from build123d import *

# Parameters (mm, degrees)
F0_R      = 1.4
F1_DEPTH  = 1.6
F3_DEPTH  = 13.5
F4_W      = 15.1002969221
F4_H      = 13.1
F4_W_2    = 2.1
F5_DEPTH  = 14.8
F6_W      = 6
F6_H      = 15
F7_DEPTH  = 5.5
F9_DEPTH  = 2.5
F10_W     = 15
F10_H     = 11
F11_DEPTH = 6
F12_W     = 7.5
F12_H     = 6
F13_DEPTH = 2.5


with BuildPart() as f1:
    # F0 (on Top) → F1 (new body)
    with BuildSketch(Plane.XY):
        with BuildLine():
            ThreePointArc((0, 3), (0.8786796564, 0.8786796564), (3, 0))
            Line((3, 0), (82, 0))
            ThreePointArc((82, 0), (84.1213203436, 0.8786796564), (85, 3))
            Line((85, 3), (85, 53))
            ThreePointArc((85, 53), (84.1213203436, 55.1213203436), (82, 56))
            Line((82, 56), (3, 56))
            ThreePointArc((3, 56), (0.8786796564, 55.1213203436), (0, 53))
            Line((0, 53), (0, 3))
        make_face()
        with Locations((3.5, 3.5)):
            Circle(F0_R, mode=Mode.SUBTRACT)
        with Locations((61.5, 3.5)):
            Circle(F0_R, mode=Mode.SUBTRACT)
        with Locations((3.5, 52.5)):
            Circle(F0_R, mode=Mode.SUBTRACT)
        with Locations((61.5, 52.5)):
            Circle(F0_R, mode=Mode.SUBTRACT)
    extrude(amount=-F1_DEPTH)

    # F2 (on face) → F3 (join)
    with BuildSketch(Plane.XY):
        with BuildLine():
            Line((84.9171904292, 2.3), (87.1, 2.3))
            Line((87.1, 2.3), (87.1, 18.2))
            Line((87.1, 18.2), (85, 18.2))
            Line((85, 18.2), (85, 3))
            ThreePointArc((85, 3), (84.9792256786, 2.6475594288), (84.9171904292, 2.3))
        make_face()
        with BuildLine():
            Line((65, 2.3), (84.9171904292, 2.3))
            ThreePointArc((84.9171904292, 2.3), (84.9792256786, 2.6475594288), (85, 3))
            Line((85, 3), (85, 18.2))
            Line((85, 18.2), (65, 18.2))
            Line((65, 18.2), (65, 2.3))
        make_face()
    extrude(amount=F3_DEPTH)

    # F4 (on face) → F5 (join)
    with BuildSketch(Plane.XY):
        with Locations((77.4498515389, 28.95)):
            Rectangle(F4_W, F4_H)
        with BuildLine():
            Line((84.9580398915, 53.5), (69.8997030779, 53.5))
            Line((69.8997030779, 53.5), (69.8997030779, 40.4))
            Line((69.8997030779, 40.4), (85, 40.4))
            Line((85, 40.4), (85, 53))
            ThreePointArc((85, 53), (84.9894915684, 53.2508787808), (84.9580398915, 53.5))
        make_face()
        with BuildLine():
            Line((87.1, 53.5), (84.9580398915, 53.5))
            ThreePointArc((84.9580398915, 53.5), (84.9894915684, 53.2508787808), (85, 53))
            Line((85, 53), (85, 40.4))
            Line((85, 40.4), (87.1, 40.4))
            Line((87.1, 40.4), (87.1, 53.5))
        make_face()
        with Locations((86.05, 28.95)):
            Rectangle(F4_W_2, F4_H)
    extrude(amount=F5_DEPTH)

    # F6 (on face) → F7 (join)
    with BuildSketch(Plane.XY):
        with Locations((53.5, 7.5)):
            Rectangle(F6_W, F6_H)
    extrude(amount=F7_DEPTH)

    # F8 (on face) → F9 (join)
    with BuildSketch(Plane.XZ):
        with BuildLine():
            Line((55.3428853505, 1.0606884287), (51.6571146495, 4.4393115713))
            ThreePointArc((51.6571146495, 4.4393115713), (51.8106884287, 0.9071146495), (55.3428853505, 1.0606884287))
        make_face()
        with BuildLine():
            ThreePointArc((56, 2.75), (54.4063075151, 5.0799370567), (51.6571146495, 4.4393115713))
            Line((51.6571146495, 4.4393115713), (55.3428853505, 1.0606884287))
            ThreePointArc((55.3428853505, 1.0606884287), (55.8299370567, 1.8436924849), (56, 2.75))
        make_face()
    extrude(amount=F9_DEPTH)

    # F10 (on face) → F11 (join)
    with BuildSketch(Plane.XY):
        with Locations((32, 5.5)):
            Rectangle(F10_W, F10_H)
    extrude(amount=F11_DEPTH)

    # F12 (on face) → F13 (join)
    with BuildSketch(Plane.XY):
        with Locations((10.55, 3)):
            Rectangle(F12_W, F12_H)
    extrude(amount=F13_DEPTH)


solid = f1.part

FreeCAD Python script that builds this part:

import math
import FreeCAD as App
import Part
import Sketcher

doc = App.newDocument("Part")
body = doc.addObject("PartDesign::Body", "Body")

# Sketch on XY plane
sketch1 = body.newObject("Sketcher::SketchObject", "Sketch")
sketch1.AttachmentSupport = (doc.getObject("XY_Plane"), [""])
sketch1.MapMode = "FlatFace"
sketch1.addGeometry(Part.ArcOfCircle(Part.Circle(App.Vector(3, 3, 0), App.Vector(0, 0, 1), 3), math.radians(180), math.radians(270)), False)
sketch1.addGeometry(Part.LineSegment(App.Vector(3, 0, 0), App.Vector(82, 0, 0)), False)
sketch1.addGeometry(Part.ArcOfCircle(Part.Circle(App.Vector(82, 3, 0), App.Vector(0, 0, 1), 3), math.radians(-90), math.radians(0)), False)
sketch1.addGeometry(Part.LineSegment(App.Vector(85, 3, 0), App.Vector(85, 53, 0)), False)
sketch1.addGeometry(Part.ArcOfCircle(Part.Circle(App.Vector(82, 53, 0), App.Vector(0, 0, 1), 3), math.radians(0), math.radians(90)), False)
sketch1.addGeometry(Part.LineSegment(App.Vector(82, 56, 0), App.Vector(3, 56, 0)), False)
sketch1.addGeometry(Part.ArcOfCircle(Part.Circle(App.Vector(3, 53, 0), App.Vector(0, 0, 1), 3), math.radians(90), math.radians(180)), False)
sketch1.addGeometry(Part.LineSegment(App.Vector(0, 53, 0), App.Vector(0, 3, 0)), False)
sketch1.addGeometry(Part.Circle(App.Vector(3.5, 3.5, 0), App.Vector(0, 0, 1), 1.4), False)
sketch1.addGeometry(Part.Circle(App.Vector(61.5, 3.5, 0), App.Vector(0, 0, 1), 1.4), False)
sketch1.addGeometry(Part.Circle(App.Vector(3.5, 52.5, 0), App.Vector(0, 0, 1), 1.4), False)
sketch1.addGeometry(Part.Circle(App.Vector(61.5, 52.5, 0), App.Vector(0, 0, 1), 1.4), False)
sketch1.addConstraint(Sketcher.Constraint("Tangent", 0, 2, 1, 1))
sketch1.addConstraint(Sketcher.Constraint("Tangent", 1, 2, 2, 1))
sketch1.addConstraint(Sketcher.Constraint("Tangent", 2, 2, 3, 1))
sketch1.addConstraint(Sketcher.Constraint("Tangent", 3, 2, 4, 1))
sketch1.addConstraint(Sketcher.Constraint("Tangent", 4, 2, 5, 1))
sketch1.addConstraint(Sketcher.Constraint("Tangent", 5, 2, 6, 1))
sketch1.addConstraint(Sketcher.Constraint("Tangent", 6, 2, 7, 1))
sketch1.addConstraint(Sketcher.Constraint("Tangent", 7, 2, 0, 1))
sketch1.addConstraint(Sketcher.Constraint("Horizontal", 1))
sketch1.addConstraint(Sketcher.Constraint("Vertical", 3))
sketch1.addConstraint(Sketcher.Constraint("Horizontal", 5))
sketch1.addConstraint(Sketcher.Constraint("Vertical", 7))
sketch1.addConstraint(Sketcher.Constraint("Equal", 0, 2))
sketch1.addConstraint(Sketcher.Constraint("Equal", 2, 4))
sketch1.addConstraint(Sketcher.Constraint("Equal", 4, 6))
sketch1.addConstraint(Sketcher.Constraint("Equal", 8, 9))
sketch1.addConstraint(Sketcher.Constraint("Equal", 9, 10))
sketch1.addConstraint(Sketcher.Constraint("Equal", 10, 11))
sketch1.addConstraint(Sketcher.Constraint("PointOnObject", 0, 2, -1))
sketch1.addConstraint(Sketcher.Constraint("PointOnObject", 6, 2, -2))
sketch1.addConstraint(Sketcher.Constraint("Horizontal", 8, 3, 9, 3))
sketch1.addConstraint(Sketcher.Constraint("Horizontal", 10, 3, 11, 3))
sketch1.addConstraint(Sketcher.Constraint("Vertical", 8, 3, 10, 3))
sketch1.addConstraint(Sketcher.Constraint("Vertical", 9, 3, 11, 3))
sketch1.addConstraint(Sketcher.Constraint("Radius", 0, 3.0))
sketch1.addConstraint(Sketcher.Constraint("Diameter", 8, 2.8))
sketch1.addConstraint(Sketcher.Constraint("DistanceX", 1, 1, 1, 2, 79.0))
sketch1.addConstraint(Sketcher.Constraint("DistanceY", 3, 1, 3, 2, 50.0))
sketch1.addConstraint(Sketcher.Constraint("DistanceX", 8, 3, 9, 3, 58.0))
sketch1.addConstraint(Sketcher.Constraint("DistanceY", 8, 3, 10, 3, 49.0))
sketch1.addConstraint(Sketcher.Constraint("DistanceX", -1, 1, 8, 3, 3.5))
sketch1.addConstraint(Sketcher.Constraint("DistanceY", -1, 1, 8, 3, 3.5))
pad1 = body.newObject("PartDesign::Pad", "Pad")
pad1.Profile = sketch1
pad1.Length = 1.6
pad1.Reversed = True

# Sketch on XY plane
sketch2 = body.newObject("Sketcher::SketchObject", "Sketch001")
sketch2.AttachmentSupport = (doc.getObject("XY_Plane"), [""])
sketch2.MapMode = "FlatFace"
sketch2.addGeometry(Part.LineSegment(App.Vector(87.1, 2.3, 0), App.Vector(87.1, 18.2, 0)), False)
sketch2.addGeometry(Part.LineSegment(App.Vector(87.1, 18.2, 0), App.Vector(65, 18.2, 0)), False)
sketch2.addGeometry(Part.LineSegment(App.Vector(65, 18.2, 0), App.Vector(65, 2.3, 0)), False)
sketch2.addGeometry(Part.LineSegment(App.Vector(65, 2.3, 0), App.Vector(87.1, 2.3, 0)), False)
sketch2.addConstraint(Sketcher.Constraint("Coincident", 0, 2, 1, 1))
sketch2.addConstraint(Sketcher.Constraint("Coincident", 1, 2, 2, 1))
sketch2.addConstraint(Sketcher.Constraint("Coincident", 2, 2, 3, 1))
sketch2.addConstraint(Sketcher.Constraint("Coincident", 3, 2, 0, 1))
sketch2.addConstraint(Sketcher.Constraint("Vertical", 0))
sketch2.addConstraint(Sketcher.Constraint("Horizontal", 1))
sketch2.addConstraint(Sketcher.Constraint("Vertical", 2))
sketch2.addConstraint(Sketcher.Constraint("Horizontal", 3))
sketch2.addConstraint(Sketcher.Constraint("DistanceX", 1, 2, 1, 1, 22.1))
sketch2.addConstraint(Sketcher.Constraint("DistanceY", 0, 1, 0, 2, 15.9))
sketch2.addConstraint(Sketcher.Constraint("DistanceX", -1, 1, 1, 2, 65.0))
sketch2.addConstraint(Sketcher.Constraint("DistanceY", -1, 1, 0, 2, 18.2))
pad2 = body.newObject("PartDesign::Pad", "Pad001")
pad2.Profile = sketch2
pad2.Length = 13.5

# Sketch on XY plane
sketch3 = body.newObject("Sketcher::SketchObject", "Sketch002")
sketch3.AttachmentSupport = (doc.getObject("XY_Plane"), [""])
sketch3.MapMode = "FlatFace"
sketch3.addGeometry(Part.LineSegment(App.Vector(69.899703, 35.5, 0), App.Vector(69.899703, 22.4, 0)), False)
sketch3.addGeometry(Part.LineSegment(App.Vector(69.899703, 22.4, 0), App.Vector(87.1, 22.4, 0)), False)
sketch3.addGeometry(Part.LineSegment(App.Vector(87.1, 22.4, 0), App.Vector(87.1, 35.5, 0)), False)
sketch3.addGeometry(Part.LineSegment(App.Vector(87.1, 35.5, 0), App.Vector(69.899703, 35.5, 0)), False)
sketch3.addGeometry(Part.LineSegment(App.Vector(69.899703, 53.5, 0), App.Vector(69.899703, 40.4, 0)), False)
sketch3.addGeometry(Part.LineSegment(App.Vector(69.899703, 40.4, 0), App.Vector(87.1, 40.4, 0)), False)
sketch3.addGeometry(Part.LineSegment(App.Vector(87.1, 40.4, 0), App.Vector(87.1, 53.5, 0)), False)
sketch3.addGeometry(Part.LineSegment(App.Vector(87.1, 53.5, 0), App.Vector(69.899703, 53.5, 0)), False)
sketch3.addConstraint(Sketcher.Constraint("Coincident", 0, 2, 1, 1))
sketch3.addConstraint(Sketcher.Constraint("Coincident", 1, 2, 2, 1))
sketch3.addConstraint(Sketcher.Constraint("Coincident", 2, 2, 3, 1))
sketch3.addConstraint(Sketcher.Constraint("Coincident", 3, 2, 0, 1))
sketch3.addConstraint(Sketcher.Constraint("Coincident", 4, 2, 5, 1))
sketch3.addConstraint(Sketcher.Constraint("Coincident", 5, 2, 6, 1))
sketch3.addConstraint(Sketcher.Constraint("Coincident", 6, 2, 7, 1))
sketch3.addConstraint(Sketcher.Constraint("Coincident", 7, 2, 4, 1))
sketch3.addConstraint(Sketcher.Constraint("Vertical", 0))
sketch3.addConstraint(Sketcher.Constraint("Horizontal", 1))
sketch3.addConstraint(Sketcher.Constraint("Vertical", 2))
sketch3.addConstraint(Sketcher.Constraint("Horizontal", 3))
sketch3.addConstraint(Sketcher.Constraint("Vertical", 4))
sketch3.addConstraint(Sketcher.Constraint("Horizontal", 5))
sketch3.addConstraint(Sketcher.Constraint("Vertical", 6))
sketch3.addConstraint(Sketcher.Constraint("Horizontal", 7))
sketch3.addConstraint(Sketcher.Constraint("Vertical", 3, 2, 4, 2))
sketch3.addConstraint(Sketcher.Constraint("Vertical", 2, 2, 5, 2))
sketch3.addConstraint(Sketcher.Constraint("Equal", 2, 4))
sketch3.addConstraint(Sketcher.Constraint("DistanceY", 0, 2, 0, 1, 13.1))
sketch3.addConstraint(Sketcher.Constraint("DistanceY", 0, 2, 4, 2, 18.0))
sketch3.addConstraint(Sketcher.Constraint("DistanceY", -1, 1, 0, 2, 22.4))
sketch3.addConstraint(Sketcher.Constraint("DistanceX", -1, 1, 1, 2, 87.1))
sketch3.addConstraint(Sketcher.Constraint("DistanceX", 1, 1, 1, 2, 17.200297))
pad3 = body.newObject("PartDesign::Pad", "Pad002")
pad3.Profile = sketch3
pad3.Length = 14.8

# Sketch on XY plane
sketch4 = body.newObject("Sketcher::SketchObject", "Sketch003")
sketch4.AttachmentSupport = (doc.getObject("XY_Plane"), [""])
sketch4.MapMode = "FlatFace"
sketch4.addGeometry(Part.LineSegment(App.Vector(50.5, 15, 0), App.Vector(50.5, 0, 0)), False)
sketch4.addGeometry(Part.LineSegment(App.Vector(50.5, 0, 0), App.Vector(56.5, 0, 0)), False)
sketch4.addGeometry(Part.LineSegment(App.Vector(56.5, 0, 0), App.Vector(56.5, 15, 0)), False)
sketch4.addGeometry(Part.LineSegment(App.Vector(56.5, 15, 0), App.Vector(50.5, 15, 0)), False)
sketch4.addConstraint(Sketcher.Constraint("Coincident", 0, 2, 1, 1))
sketch4.addConstraint(Sketcher.Constraint("Coincident", 1, 2, 2, 1))
sketch4.addConstraint(Sketcher.Constraint("Coincident", 2, 2, 3, 1))
sketch4.addConstraint(Sketcher.Constraint("Coincident", 3, 2, 0, 1))
sketch4.addConstraint(Sketcher.Constraint("Vertical", 0))
sketch4.addConstraint(Sketcher.Constraint("Horizontal", 1))
sketch4.addConstraint(Sketcher.Constraint("Vertical", 2))
sketch4.addConstraint(Sketcher.Constraint("Horizontal", 3))
sketch4.addConstraint(Sketcher.Constraint("PointOnObject", 0, 2, -1))
sketch4.addConstraint(Sketcher.Constraint("DistanceX", 1, 1, 1, 2, 6.0))
sketch4.addConstraint(Sketcher.Constraint("DistanceY", 0, 2, 0, 1, 15.0))
sketch4.addConstraint(Sketcher.Constraint("DistanceX", -1, 1, 0, 2, 50.5))
pad4 = body.newObject("PartDesign::Pad", "Pad003")
pad4.Profile = sketch4
pad4.Length = 5.5

# Sketch on XZ plane
sketch5 = body.newObject("Sketcher::SketchObject", "Sketch004")
sketch5.AttachmentSupport = (doc.getObject("XZ_Plane"), [""])
sketch5.MapMode = "FlatFace"
sketch5.addGeometry(Part.ArcOfCircle(Part.Circle(App.Vector(53.5, 2.75, 0), App.Vector(0, 0, 1), 2.5), math.radians(137.489553), math.radians(317.489553)), False)
sketch5.addGeometry(Part.ArcOfCircle(Part.Circle(App.Vector(53.5, 2.75, 0), App.Vector(0, 0, 1), 2.5), math.radians(-42.510447), math.radians(0)), False)
sketch5.addGeometry(Part.ArcOfCircle(Part.Circle(App.Vector(53.5, 2.75, 0), App.Vector(0, 0, 1), 2.5), math.radians(0), math.radians(137.489553)), False)
sketch5.addConstraint(Sketcher.Constraint("Tangent", 0, 2, 1, 1))
sketch5.addConstraint(Sketcher.Constraint("Tangent", 1, 2, 2, 1))
sketch5.addConstraint(Sketcher.Constraint("Tangent", 2, 2, 0, 1))
sketch5.addConstraint(Sketcher.Constraint("Horizontal", 2, 3, 1, 2))
sketch5.addConstraint(Sketcher.Constraint("Radius", 0, 2.5))
sketch5.addConstraint(Sketcher.Constraint("DistanceX", -1, 1, 1, 2, 56.0))
sketch5.addConstraint(Sketcher.Constraint("DistanceY", -1, 1, 0, 3, 2.75))
sketch5.addConstraint(Sketcher.Constraint("DistanceY", -1, 1, 0, 2, 1.060688))
sketch5.addConstraint(Sketcher.Constraint("DistanceY", -1, 1, 2, 2, 4.439312))
pad5 = body.newObject("PartDesign::Pad", "Pad004")
pad5.Profile = sketch5
pad5.Length = 2.5

# Sketch on XY plane
sketch6 = body.newObject("Sketcher::SketchObject", "Sketch005")
sketch6.AttachmentSupport = (doc.getObject("XY_Plane"), [""])
sketch6.MapMode = "FlatFace"
sketch6.addGeometry(Part.LineSegment(App.Vector(24.5, 11, 0), App.Vector(24.5, 0, 0)), False)
sketch6.addGeometry(Part.LineSegment(App.Vector(24.5, 0, 0), App.Vector(39.5, 0, 0)), False)
sketch6.addGeometry(Part.LineSegment(App.Vector(39.5, 0, 0), App.Vector(39.5, 11, 0)), False)
sketch6.addGeometry(Part.LineSegment(App.Vector(39.5, 11, 0), App.Vector(24.5, 11, 0)), False)
sketch6.addConstraint(Sketcher.Constraint("Coincident", 0, 2, 1, 1))
sketch6.addConstraint(Sketcher.Constraint("Coincident", 1, 2, 2, 1))
sketch6.addConstraint(Sketcher.Constraint("Coincident", 2, 2, 3, 1))
sketch6.addConstraint(Sketcher.Constraint("Coincident", 3, 2, 0, 1))
sketch6.addConstraint(Sketcher.Constraint("Vertical", 0))
sketch6.addConstraint(Sketcher.Constraint("Horizontal", 1))
sketch6.addConstraint(Sketcher.Constraint("Vertical", 2))
sketch6.addConstraint(Sketcher.Constraint("Horizontal", 3))
sketch6.addConstraint(Sketcher.Constraint("PointOnObject", 0, 2, -1))
sketch6.addConstraint(Sketcher.Constraint("DistanceX", 1, 1, 1, 2, 15.0))
sketch6.addConstraint(Sketcher.Constraint("DistanceY", 0, 2, 0, 1, 11.0))
sketch6.addConstraint(Sketcher.Constraint("DistanceX", -1, 1, 0, 2, 24.5))
pad6 = body.newObject("PartDesign::Pad", "Pad005")
pad6.Profile = sketch6
pad6.Length = 6

# Sketch on XY plane
sketch7 = body.newObject("Sketcher::SketchObject", "Sketch006")
sketch7.AttachmentSupport = (doc.getObject("XY_Plane"), [""])
sketch7.MapMode = "FlatFace"
sketch7.addGeometry(Part.LineSegment(App.Vector(6.8, 6, 0), App.Vector(6.8, 0, 0)), False)
sketch7.addGeometry(Part.LineSegment(App.Vector(6.8, 0, 0), App.Vector(14.3, 0, 0)), False)
sketch7.addGeometry(Part.LineSegment(App.Vector(14.3, 0, 0), App.Vector(14.3, 6, 0)), False)
sketch7.addGeometry(Part.LineSegment(App.Vector(14.3, 6, 0), App.Vector(6.8, 6, 0)), False)
sketch7.addConstraint(Sketcher.Constraint("Coincident", 0, 2, 1, 1))
sketch7.addConstraint(Sketcher.Constraint("Coincident", 1, 2, 2, 1))
sketch7.addConstraint(Sketcher.Constraint("Coincident", 2, 2, 3, 1))
sketch7.addConstraint(Sketcher.Constraint("Coincident", 3, 2, 0, 1))
sketch7.addConstraint(Sketcher.Constraint("Vertical", 0))
sketch7.addConstraint(Sketcher.Constraint("Horizontal", 1))
sketch7.addConstraint(Sketcher.Constraint("Vertical", 2))
sketch7.addConstraint(Sketcher.Constraint("Horizontal", 3))
sketch7.addConstraint(Sketcher.Constraint("PointOnObject", 0, 2, -1))
sketch7.addConstraint(Sketcher.Constraint("DistanceY", 0, 2, 0, 1, 6.0))
sketch7.addConstraint(Sketcher.Constraint("DistanceX", 1, 1, 1, 2, 7.5))
sketch7.addConstraint(Sketcher.Constraint("DistanceX", -1, 1, 0, 2, 6.8))
pad7 = body.newObject("PartDesign::Pad", "Pad006")
pad7.Profile = sketch7
pad7.Length = 2.5

doc.recompute()
